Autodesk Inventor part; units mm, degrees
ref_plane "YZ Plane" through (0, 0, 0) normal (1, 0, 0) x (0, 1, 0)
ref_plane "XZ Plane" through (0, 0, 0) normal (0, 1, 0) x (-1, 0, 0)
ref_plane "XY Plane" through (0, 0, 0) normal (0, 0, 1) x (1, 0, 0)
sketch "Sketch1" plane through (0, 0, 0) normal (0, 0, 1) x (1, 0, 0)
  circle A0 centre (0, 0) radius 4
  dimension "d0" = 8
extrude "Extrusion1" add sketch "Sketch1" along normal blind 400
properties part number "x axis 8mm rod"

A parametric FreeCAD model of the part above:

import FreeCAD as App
import Part
import Sketcher
from FreeCAD import Vector

doc = App.newDocument("Part")
body = doc.addObject("PartDesign::Body", "Body")

sketch1 = body.newObject("Sketcher::SketchObject", "Sketch")
sketch1.AttachmentSupport = (doc.getObject("XY_Plane"), [""])
sketch1.MapMode = "FlatFace"
sketch1.addGeometry(Part.Circle(Vector(0, 0, 0), Vector(0, 0, 1), 4), False)
sketch1.addConstraint(Sketcher.Constraint("Coincident", 0, 3, -1, 1))
sketch1.addConstraint(Sketcher.Constraint("Diameter", 0, 8.0))
pad1 = body.newObject("PartDesign::Pad", "Pad")
pad1.Profile = sketch1
pad1.Length = 400

doc.recompute()
